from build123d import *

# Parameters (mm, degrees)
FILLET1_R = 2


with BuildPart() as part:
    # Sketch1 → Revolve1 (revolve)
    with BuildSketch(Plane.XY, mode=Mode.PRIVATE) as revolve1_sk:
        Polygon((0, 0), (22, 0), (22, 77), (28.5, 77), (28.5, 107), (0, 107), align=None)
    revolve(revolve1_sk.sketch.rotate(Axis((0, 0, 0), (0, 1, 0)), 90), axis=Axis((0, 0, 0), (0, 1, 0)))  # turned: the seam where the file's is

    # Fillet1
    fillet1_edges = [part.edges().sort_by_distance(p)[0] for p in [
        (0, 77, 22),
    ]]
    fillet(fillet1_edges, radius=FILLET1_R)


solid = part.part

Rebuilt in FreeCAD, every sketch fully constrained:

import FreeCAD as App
import Part
import Sketcher

V = App.Vector


def edges_at(feature, points):
    """Names of the edges that pass closest to the given points."""
    edges = feature.Shape.Edges
    near = lambda p: min(range(len(edges)), key=lambda i: edges[i].distToShape(Part.Vertex(*p))[0])
    return sorted({f"Edge{near(p) + 1}" for p in points})

doc = App.newDocument("Part")
body = doc.addObject("PartDesign::Body", "Body")

sketch1 = body.newObject("Sketcher::SketchObject", "Sketch")
sketch1.AttachmentSupport = (doc.getObject("XY_Plane"), [""])
sketch1.MapMode = "FlatFace"
sketch1.addGeometry(Part.LineSegment(V(0, 0, 0), V(22, 0, 0)), False)
sketch1.addGeometry(Part.LineSegment(V(22, 0, 0), V(22, 77, 0)), False)
sketch1.addGeometry(Part.LineSegment(V(22, 77, 0), V(28, 77, 0)), False)
sketch1.addGeometry(Part.LineSegment(V(28, 77, 0), V(28, 107, 0)), False)
sketch1.addGeometry(Part.LineSegment(V(28, 107, 0), V(0, 107, 0)), False)
sketch1.addGeometry(Part.LineSegment(V(0, 107, 0), V(0, 0, 0)), False)
sketch1.addConstraint(Sketcher.Constraint("Coincident", 0, 2, 1, 1))
sketch1.addConstraint(Sketcher.Constraint("Coincident", 1, 2, 2, 1))
sketch1.addConstraint(Sketcher.Constraint("Coincident", 2, 2, 3, 1))
sketch1.addConstraint(Sketcher.Constraint("Coincident", 3, 2, 4, 1))
sketch1.addConstraint(Sketcher.Constraint("Coincident", 4, 2, 5, 1))
sketch1.addConstraint(Sketcher.Constraint("Coincident", 5, 2, 0, 1))
sketch1.addConstraint(Sketcher.Constraint("Horizontal", 0))
sketch1.addConstraint(Sketcher.Constraint("Vertical", 1))
sketch1.addConstraint(Sketcher.Constraint("Horizontal", 2))
sketch1.addConstraint(Sketcher.Constraint("Vertical", 3))
sketch1.addConstraint(Sketcher.Constraint("Horizontal", 4))
sketch1.addConstraint(Sketcher.Constraint("Vertical", 5))
sketch1.addConstraint(Sketcher.Constraint("Coincident", 5, 2, -1, 1))
sketch1.addConstraint(Sketcher.Constraint("DistanceX", 0, 1, 0, 2, 22.0))
sketch1.addConstraint(Sketcher.Constraint("DistanceY", 1, 1, 1, 2, 77.0))
sketch1.addConstraint(Sketcher.Constraint("DistanceY", 3, 1, 3, 2, 30.0))
sketch1.addConstraint(Sketcher.Constraint("DistanceX", 2, 1, 2, 2, 6.5))
revolution = body.newObject("PartDesign::Revolution", "Revolution")
revolution.Profile = sketch1
revolution.ReferenceAxis = (sketch1, ["V_Axis"])
revolution.Angle = 360
doc.recompute()

fillet = body.newObject("PartDesign::Fillet", "Fillet")
fillet.Base = (revolution, edges_at(revolution, [(0, 77, 22)]))
fillet.Radius = 2

doc.recompute()
